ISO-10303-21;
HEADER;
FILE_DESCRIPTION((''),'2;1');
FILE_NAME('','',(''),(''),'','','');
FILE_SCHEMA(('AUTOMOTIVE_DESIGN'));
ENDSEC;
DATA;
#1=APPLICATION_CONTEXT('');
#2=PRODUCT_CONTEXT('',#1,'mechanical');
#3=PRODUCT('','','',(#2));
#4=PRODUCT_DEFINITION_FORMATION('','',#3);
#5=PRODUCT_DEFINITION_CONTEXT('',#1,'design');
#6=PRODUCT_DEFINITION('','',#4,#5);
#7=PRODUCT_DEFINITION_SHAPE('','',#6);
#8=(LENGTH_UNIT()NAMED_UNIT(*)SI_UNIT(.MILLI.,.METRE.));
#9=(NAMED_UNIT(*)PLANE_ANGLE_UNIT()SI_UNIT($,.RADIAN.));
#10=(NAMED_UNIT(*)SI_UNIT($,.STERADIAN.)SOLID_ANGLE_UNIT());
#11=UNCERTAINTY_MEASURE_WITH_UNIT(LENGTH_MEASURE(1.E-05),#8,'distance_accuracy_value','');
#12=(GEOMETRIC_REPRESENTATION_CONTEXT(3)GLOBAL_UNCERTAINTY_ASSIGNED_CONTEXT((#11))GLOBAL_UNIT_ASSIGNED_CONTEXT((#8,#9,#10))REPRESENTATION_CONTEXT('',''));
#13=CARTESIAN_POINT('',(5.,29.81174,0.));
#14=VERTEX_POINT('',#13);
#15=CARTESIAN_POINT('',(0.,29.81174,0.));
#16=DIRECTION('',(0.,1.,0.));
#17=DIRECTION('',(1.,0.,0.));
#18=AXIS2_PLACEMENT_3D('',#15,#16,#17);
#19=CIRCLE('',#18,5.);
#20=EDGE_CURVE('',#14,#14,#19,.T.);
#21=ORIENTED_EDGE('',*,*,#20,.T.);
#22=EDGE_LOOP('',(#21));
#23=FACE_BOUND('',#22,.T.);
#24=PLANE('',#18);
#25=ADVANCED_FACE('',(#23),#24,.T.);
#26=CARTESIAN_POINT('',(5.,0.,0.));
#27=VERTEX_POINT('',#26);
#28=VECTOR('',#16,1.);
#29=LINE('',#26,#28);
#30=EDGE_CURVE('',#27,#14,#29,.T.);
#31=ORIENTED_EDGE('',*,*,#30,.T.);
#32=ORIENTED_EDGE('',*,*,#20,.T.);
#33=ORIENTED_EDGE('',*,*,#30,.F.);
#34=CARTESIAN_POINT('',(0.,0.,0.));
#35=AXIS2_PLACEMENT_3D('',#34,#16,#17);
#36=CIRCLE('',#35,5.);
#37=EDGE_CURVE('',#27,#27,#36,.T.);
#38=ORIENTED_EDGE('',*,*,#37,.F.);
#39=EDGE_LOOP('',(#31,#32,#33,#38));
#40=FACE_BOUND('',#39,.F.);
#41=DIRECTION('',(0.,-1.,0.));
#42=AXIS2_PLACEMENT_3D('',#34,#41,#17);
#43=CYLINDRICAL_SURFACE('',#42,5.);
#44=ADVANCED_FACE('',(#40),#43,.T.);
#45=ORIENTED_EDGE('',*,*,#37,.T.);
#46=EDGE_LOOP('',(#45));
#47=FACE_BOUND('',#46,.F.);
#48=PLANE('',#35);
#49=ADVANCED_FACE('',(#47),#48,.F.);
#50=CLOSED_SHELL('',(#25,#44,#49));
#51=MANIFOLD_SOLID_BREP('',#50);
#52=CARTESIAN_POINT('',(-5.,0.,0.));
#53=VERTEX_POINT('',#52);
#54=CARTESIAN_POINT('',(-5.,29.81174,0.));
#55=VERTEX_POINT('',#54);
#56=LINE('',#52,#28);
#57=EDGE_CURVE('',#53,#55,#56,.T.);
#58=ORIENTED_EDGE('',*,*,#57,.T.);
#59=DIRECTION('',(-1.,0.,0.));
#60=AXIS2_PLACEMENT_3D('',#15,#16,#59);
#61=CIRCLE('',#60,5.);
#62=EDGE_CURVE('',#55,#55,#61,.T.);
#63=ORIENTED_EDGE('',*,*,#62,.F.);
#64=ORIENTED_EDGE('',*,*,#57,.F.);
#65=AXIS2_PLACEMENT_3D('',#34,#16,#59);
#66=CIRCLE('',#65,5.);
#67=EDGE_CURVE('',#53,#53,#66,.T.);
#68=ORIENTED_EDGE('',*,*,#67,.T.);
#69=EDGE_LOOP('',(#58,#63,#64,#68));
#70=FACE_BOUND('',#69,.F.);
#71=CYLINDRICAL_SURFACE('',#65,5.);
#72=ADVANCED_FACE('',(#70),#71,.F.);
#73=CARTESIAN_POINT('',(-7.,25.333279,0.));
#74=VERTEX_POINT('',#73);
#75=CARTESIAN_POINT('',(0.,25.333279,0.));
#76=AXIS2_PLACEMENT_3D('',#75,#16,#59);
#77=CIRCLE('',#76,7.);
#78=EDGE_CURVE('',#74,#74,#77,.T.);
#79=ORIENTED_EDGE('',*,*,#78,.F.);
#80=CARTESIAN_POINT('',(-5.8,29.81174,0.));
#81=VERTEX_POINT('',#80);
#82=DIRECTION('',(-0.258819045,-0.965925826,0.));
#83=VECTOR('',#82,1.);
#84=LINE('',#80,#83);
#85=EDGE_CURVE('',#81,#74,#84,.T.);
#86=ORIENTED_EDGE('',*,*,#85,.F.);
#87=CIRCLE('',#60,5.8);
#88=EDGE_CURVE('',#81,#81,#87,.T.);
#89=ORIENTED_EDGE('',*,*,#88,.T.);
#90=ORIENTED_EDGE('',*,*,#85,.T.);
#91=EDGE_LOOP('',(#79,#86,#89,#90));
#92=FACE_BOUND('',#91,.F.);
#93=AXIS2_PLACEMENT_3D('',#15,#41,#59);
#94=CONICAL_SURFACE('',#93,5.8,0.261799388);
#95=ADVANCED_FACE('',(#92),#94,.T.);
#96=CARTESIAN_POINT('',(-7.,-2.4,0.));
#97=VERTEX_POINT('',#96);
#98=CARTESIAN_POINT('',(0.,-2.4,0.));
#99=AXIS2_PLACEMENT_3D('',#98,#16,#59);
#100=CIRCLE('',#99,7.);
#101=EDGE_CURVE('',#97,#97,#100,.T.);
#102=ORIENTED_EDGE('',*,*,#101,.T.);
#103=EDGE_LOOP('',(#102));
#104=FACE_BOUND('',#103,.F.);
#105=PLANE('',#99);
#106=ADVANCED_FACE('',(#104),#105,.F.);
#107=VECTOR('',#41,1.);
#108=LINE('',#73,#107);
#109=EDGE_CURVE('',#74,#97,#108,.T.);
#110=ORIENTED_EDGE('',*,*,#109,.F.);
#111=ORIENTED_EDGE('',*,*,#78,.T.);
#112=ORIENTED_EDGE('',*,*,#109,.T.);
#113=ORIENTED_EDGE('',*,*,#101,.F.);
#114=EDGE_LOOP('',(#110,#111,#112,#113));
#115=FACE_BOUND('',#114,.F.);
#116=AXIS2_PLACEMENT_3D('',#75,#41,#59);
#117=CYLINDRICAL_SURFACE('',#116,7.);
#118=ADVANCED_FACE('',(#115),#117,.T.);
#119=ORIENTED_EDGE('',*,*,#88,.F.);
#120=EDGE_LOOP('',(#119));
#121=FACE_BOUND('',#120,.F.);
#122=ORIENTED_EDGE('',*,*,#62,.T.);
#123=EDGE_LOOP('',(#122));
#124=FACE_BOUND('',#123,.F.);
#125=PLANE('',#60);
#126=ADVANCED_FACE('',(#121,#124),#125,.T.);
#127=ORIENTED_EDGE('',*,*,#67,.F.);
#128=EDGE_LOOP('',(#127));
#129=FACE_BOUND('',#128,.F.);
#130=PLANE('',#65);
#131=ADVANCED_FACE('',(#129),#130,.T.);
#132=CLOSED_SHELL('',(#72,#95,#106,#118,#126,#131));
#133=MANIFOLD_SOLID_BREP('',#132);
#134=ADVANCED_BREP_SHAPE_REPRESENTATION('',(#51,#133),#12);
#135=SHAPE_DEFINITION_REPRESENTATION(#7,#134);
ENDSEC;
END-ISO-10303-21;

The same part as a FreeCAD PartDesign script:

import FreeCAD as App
import Part
import Sketcher

V = App.Vector
Q = App.Units.Quantity

doc = App.newDocument("Part")
body = doc.addObject("PartDesign::Body", "Body")

sketch1 = doc.addObject("Sketcher::SketchObject", "Sketch")
body.addObject(sketch1)
sketch1.AttachmentSupport = (doc.XZ_Plane, [""])
sketch1.MapMode = "FlatFace"
sketch1.addGeometry(Part.Circle(V(0, 0, 0), V(0, 0, 1), 5), False)
sketch1.addConstraint(Sketcher.Constraint("Coincident", 0, 3, -1, 1))
sketch1.addConstraint(Sketcher.Constraint("Diameter", 0, 10.0))
pad1 = doc.addObject("PartDesign::Pad", "Pad")
body.addObject(pad1)
pad1.Profile = sketch1
pad1.Length = 29.81174
pad1.Reversed = True
body2 = doc.addObject("PartDesign::Body", "Body001")

sketch2 = doc.addObject("Sketcher::SketchObject", "Sketch001")
body2.addObject(sketch2)
sketch2.AttachmentSupport = (doc.getObject("XY_Plane001"), [""])
sketch2.MapMode = "FlatFace"
sketch2.addGeometry(Part.LineSegment(V(0, 0, 0), V(-5, 0, 0)), False)
sketch2.addGeometry(Part.LineSegment(V(-5, 0, 0), V(-5, 29.8, 0)), False)
sketch2.addGeometry(Part.LineSegment(V(-5, 29.8, 0), V(-5.8, 29.8, 0)), False)
sketch2.addGeometry(Part.LineSegment(V(-5.8, 29.8, 0), V(-7, 25.3, 0)), False)
sketch2.addGeometry(Part.LineSegment(V(-7, 25.3, 0), V(-7, -2.4, 0)), False)
sketch2.addGeometry(Part.LineSegment(V(-7, -2.4, 0), V(0, -2.4, 0)), False)
sketch2.addGeometry(Part.LineSegment(V(0, -2.4, 0), V(0, 0, 0)), False)
sketch2.addConstraint(Sketcher.Constraint("Coincident", 0, 2, 1, 1))
sketch2.addConstraint(Sketcher.Constraint("Coincident", 1, 2, 2, 1))
sketch2.addConstraint(Sketcher.Constraint("Coincident", 2, 2, 3, 1))
sketch2.addConstraint(Sketcher.Constraint("Coincident", 3, 2, 4, 1))
sketch2.addConstraint(Sketcher.Constraint("Coincident", 4, 2, 5, 1))
sketch2.addConstraint(Sketcher.Constraint("Coincident", 5, 2, 6, 1))
sketch2.addConstraint(Sketcher.Constraint("Coincident", 6, 2, 0, 1))
sketch2.addConstraint(Sketcher.Constraint("Horizontal", 0))
sketch2.addConstraint(Sketcher.Constraint("Vertical", 1))
sketch2.addConstraint(Sketcher.Constraint("Horizontal", 2))
sketch2.addConstraint(Sketcher.Constraint("Vertical", 4))
sketch2.addConstraint(Sketcher.Constraint("Horizontal", 5))
sketch2.addConstraint(Sketcher.Constraint("Vertical", 6))
sketch2.addConstraint(Sketcher.Constraint("Coincident", 6, 2, -1, 1))
sketch2.addConstraint(Sketcher.Constraint("DistanceX", 0, 2, 0, 1, 5.0))
sketch2.addConstraint(Sketcher.Constraint("DistanceX", 5, 1, 5, 2, 7.0))
sketch2.addConstraint(Sketcher.Constraint("Angle", 3, Q("-105 deg")))
sketch2.addConstraint(Sketcher.Constraint("DistanceX", 2, 2, 2, 1, 0.8))
sketch2.addConstraint(Sketcher.Constraint("DistanceY", 6, 1, 6, 2, 2.4))
sketch2.addConstraint(Sketcher.Constraint("DistanceY", 1, 1, 1, 2, 29.81174))
revolution = doc.addObject("PartDesign::Revolution", "Revolution")
body2.addObject(revolution)
revolution.Profile = sketch2
revolution.ReferenceAxis = (sketch2, ["V_Axis"])
revolution.Angle = 360

doc.recompute()
